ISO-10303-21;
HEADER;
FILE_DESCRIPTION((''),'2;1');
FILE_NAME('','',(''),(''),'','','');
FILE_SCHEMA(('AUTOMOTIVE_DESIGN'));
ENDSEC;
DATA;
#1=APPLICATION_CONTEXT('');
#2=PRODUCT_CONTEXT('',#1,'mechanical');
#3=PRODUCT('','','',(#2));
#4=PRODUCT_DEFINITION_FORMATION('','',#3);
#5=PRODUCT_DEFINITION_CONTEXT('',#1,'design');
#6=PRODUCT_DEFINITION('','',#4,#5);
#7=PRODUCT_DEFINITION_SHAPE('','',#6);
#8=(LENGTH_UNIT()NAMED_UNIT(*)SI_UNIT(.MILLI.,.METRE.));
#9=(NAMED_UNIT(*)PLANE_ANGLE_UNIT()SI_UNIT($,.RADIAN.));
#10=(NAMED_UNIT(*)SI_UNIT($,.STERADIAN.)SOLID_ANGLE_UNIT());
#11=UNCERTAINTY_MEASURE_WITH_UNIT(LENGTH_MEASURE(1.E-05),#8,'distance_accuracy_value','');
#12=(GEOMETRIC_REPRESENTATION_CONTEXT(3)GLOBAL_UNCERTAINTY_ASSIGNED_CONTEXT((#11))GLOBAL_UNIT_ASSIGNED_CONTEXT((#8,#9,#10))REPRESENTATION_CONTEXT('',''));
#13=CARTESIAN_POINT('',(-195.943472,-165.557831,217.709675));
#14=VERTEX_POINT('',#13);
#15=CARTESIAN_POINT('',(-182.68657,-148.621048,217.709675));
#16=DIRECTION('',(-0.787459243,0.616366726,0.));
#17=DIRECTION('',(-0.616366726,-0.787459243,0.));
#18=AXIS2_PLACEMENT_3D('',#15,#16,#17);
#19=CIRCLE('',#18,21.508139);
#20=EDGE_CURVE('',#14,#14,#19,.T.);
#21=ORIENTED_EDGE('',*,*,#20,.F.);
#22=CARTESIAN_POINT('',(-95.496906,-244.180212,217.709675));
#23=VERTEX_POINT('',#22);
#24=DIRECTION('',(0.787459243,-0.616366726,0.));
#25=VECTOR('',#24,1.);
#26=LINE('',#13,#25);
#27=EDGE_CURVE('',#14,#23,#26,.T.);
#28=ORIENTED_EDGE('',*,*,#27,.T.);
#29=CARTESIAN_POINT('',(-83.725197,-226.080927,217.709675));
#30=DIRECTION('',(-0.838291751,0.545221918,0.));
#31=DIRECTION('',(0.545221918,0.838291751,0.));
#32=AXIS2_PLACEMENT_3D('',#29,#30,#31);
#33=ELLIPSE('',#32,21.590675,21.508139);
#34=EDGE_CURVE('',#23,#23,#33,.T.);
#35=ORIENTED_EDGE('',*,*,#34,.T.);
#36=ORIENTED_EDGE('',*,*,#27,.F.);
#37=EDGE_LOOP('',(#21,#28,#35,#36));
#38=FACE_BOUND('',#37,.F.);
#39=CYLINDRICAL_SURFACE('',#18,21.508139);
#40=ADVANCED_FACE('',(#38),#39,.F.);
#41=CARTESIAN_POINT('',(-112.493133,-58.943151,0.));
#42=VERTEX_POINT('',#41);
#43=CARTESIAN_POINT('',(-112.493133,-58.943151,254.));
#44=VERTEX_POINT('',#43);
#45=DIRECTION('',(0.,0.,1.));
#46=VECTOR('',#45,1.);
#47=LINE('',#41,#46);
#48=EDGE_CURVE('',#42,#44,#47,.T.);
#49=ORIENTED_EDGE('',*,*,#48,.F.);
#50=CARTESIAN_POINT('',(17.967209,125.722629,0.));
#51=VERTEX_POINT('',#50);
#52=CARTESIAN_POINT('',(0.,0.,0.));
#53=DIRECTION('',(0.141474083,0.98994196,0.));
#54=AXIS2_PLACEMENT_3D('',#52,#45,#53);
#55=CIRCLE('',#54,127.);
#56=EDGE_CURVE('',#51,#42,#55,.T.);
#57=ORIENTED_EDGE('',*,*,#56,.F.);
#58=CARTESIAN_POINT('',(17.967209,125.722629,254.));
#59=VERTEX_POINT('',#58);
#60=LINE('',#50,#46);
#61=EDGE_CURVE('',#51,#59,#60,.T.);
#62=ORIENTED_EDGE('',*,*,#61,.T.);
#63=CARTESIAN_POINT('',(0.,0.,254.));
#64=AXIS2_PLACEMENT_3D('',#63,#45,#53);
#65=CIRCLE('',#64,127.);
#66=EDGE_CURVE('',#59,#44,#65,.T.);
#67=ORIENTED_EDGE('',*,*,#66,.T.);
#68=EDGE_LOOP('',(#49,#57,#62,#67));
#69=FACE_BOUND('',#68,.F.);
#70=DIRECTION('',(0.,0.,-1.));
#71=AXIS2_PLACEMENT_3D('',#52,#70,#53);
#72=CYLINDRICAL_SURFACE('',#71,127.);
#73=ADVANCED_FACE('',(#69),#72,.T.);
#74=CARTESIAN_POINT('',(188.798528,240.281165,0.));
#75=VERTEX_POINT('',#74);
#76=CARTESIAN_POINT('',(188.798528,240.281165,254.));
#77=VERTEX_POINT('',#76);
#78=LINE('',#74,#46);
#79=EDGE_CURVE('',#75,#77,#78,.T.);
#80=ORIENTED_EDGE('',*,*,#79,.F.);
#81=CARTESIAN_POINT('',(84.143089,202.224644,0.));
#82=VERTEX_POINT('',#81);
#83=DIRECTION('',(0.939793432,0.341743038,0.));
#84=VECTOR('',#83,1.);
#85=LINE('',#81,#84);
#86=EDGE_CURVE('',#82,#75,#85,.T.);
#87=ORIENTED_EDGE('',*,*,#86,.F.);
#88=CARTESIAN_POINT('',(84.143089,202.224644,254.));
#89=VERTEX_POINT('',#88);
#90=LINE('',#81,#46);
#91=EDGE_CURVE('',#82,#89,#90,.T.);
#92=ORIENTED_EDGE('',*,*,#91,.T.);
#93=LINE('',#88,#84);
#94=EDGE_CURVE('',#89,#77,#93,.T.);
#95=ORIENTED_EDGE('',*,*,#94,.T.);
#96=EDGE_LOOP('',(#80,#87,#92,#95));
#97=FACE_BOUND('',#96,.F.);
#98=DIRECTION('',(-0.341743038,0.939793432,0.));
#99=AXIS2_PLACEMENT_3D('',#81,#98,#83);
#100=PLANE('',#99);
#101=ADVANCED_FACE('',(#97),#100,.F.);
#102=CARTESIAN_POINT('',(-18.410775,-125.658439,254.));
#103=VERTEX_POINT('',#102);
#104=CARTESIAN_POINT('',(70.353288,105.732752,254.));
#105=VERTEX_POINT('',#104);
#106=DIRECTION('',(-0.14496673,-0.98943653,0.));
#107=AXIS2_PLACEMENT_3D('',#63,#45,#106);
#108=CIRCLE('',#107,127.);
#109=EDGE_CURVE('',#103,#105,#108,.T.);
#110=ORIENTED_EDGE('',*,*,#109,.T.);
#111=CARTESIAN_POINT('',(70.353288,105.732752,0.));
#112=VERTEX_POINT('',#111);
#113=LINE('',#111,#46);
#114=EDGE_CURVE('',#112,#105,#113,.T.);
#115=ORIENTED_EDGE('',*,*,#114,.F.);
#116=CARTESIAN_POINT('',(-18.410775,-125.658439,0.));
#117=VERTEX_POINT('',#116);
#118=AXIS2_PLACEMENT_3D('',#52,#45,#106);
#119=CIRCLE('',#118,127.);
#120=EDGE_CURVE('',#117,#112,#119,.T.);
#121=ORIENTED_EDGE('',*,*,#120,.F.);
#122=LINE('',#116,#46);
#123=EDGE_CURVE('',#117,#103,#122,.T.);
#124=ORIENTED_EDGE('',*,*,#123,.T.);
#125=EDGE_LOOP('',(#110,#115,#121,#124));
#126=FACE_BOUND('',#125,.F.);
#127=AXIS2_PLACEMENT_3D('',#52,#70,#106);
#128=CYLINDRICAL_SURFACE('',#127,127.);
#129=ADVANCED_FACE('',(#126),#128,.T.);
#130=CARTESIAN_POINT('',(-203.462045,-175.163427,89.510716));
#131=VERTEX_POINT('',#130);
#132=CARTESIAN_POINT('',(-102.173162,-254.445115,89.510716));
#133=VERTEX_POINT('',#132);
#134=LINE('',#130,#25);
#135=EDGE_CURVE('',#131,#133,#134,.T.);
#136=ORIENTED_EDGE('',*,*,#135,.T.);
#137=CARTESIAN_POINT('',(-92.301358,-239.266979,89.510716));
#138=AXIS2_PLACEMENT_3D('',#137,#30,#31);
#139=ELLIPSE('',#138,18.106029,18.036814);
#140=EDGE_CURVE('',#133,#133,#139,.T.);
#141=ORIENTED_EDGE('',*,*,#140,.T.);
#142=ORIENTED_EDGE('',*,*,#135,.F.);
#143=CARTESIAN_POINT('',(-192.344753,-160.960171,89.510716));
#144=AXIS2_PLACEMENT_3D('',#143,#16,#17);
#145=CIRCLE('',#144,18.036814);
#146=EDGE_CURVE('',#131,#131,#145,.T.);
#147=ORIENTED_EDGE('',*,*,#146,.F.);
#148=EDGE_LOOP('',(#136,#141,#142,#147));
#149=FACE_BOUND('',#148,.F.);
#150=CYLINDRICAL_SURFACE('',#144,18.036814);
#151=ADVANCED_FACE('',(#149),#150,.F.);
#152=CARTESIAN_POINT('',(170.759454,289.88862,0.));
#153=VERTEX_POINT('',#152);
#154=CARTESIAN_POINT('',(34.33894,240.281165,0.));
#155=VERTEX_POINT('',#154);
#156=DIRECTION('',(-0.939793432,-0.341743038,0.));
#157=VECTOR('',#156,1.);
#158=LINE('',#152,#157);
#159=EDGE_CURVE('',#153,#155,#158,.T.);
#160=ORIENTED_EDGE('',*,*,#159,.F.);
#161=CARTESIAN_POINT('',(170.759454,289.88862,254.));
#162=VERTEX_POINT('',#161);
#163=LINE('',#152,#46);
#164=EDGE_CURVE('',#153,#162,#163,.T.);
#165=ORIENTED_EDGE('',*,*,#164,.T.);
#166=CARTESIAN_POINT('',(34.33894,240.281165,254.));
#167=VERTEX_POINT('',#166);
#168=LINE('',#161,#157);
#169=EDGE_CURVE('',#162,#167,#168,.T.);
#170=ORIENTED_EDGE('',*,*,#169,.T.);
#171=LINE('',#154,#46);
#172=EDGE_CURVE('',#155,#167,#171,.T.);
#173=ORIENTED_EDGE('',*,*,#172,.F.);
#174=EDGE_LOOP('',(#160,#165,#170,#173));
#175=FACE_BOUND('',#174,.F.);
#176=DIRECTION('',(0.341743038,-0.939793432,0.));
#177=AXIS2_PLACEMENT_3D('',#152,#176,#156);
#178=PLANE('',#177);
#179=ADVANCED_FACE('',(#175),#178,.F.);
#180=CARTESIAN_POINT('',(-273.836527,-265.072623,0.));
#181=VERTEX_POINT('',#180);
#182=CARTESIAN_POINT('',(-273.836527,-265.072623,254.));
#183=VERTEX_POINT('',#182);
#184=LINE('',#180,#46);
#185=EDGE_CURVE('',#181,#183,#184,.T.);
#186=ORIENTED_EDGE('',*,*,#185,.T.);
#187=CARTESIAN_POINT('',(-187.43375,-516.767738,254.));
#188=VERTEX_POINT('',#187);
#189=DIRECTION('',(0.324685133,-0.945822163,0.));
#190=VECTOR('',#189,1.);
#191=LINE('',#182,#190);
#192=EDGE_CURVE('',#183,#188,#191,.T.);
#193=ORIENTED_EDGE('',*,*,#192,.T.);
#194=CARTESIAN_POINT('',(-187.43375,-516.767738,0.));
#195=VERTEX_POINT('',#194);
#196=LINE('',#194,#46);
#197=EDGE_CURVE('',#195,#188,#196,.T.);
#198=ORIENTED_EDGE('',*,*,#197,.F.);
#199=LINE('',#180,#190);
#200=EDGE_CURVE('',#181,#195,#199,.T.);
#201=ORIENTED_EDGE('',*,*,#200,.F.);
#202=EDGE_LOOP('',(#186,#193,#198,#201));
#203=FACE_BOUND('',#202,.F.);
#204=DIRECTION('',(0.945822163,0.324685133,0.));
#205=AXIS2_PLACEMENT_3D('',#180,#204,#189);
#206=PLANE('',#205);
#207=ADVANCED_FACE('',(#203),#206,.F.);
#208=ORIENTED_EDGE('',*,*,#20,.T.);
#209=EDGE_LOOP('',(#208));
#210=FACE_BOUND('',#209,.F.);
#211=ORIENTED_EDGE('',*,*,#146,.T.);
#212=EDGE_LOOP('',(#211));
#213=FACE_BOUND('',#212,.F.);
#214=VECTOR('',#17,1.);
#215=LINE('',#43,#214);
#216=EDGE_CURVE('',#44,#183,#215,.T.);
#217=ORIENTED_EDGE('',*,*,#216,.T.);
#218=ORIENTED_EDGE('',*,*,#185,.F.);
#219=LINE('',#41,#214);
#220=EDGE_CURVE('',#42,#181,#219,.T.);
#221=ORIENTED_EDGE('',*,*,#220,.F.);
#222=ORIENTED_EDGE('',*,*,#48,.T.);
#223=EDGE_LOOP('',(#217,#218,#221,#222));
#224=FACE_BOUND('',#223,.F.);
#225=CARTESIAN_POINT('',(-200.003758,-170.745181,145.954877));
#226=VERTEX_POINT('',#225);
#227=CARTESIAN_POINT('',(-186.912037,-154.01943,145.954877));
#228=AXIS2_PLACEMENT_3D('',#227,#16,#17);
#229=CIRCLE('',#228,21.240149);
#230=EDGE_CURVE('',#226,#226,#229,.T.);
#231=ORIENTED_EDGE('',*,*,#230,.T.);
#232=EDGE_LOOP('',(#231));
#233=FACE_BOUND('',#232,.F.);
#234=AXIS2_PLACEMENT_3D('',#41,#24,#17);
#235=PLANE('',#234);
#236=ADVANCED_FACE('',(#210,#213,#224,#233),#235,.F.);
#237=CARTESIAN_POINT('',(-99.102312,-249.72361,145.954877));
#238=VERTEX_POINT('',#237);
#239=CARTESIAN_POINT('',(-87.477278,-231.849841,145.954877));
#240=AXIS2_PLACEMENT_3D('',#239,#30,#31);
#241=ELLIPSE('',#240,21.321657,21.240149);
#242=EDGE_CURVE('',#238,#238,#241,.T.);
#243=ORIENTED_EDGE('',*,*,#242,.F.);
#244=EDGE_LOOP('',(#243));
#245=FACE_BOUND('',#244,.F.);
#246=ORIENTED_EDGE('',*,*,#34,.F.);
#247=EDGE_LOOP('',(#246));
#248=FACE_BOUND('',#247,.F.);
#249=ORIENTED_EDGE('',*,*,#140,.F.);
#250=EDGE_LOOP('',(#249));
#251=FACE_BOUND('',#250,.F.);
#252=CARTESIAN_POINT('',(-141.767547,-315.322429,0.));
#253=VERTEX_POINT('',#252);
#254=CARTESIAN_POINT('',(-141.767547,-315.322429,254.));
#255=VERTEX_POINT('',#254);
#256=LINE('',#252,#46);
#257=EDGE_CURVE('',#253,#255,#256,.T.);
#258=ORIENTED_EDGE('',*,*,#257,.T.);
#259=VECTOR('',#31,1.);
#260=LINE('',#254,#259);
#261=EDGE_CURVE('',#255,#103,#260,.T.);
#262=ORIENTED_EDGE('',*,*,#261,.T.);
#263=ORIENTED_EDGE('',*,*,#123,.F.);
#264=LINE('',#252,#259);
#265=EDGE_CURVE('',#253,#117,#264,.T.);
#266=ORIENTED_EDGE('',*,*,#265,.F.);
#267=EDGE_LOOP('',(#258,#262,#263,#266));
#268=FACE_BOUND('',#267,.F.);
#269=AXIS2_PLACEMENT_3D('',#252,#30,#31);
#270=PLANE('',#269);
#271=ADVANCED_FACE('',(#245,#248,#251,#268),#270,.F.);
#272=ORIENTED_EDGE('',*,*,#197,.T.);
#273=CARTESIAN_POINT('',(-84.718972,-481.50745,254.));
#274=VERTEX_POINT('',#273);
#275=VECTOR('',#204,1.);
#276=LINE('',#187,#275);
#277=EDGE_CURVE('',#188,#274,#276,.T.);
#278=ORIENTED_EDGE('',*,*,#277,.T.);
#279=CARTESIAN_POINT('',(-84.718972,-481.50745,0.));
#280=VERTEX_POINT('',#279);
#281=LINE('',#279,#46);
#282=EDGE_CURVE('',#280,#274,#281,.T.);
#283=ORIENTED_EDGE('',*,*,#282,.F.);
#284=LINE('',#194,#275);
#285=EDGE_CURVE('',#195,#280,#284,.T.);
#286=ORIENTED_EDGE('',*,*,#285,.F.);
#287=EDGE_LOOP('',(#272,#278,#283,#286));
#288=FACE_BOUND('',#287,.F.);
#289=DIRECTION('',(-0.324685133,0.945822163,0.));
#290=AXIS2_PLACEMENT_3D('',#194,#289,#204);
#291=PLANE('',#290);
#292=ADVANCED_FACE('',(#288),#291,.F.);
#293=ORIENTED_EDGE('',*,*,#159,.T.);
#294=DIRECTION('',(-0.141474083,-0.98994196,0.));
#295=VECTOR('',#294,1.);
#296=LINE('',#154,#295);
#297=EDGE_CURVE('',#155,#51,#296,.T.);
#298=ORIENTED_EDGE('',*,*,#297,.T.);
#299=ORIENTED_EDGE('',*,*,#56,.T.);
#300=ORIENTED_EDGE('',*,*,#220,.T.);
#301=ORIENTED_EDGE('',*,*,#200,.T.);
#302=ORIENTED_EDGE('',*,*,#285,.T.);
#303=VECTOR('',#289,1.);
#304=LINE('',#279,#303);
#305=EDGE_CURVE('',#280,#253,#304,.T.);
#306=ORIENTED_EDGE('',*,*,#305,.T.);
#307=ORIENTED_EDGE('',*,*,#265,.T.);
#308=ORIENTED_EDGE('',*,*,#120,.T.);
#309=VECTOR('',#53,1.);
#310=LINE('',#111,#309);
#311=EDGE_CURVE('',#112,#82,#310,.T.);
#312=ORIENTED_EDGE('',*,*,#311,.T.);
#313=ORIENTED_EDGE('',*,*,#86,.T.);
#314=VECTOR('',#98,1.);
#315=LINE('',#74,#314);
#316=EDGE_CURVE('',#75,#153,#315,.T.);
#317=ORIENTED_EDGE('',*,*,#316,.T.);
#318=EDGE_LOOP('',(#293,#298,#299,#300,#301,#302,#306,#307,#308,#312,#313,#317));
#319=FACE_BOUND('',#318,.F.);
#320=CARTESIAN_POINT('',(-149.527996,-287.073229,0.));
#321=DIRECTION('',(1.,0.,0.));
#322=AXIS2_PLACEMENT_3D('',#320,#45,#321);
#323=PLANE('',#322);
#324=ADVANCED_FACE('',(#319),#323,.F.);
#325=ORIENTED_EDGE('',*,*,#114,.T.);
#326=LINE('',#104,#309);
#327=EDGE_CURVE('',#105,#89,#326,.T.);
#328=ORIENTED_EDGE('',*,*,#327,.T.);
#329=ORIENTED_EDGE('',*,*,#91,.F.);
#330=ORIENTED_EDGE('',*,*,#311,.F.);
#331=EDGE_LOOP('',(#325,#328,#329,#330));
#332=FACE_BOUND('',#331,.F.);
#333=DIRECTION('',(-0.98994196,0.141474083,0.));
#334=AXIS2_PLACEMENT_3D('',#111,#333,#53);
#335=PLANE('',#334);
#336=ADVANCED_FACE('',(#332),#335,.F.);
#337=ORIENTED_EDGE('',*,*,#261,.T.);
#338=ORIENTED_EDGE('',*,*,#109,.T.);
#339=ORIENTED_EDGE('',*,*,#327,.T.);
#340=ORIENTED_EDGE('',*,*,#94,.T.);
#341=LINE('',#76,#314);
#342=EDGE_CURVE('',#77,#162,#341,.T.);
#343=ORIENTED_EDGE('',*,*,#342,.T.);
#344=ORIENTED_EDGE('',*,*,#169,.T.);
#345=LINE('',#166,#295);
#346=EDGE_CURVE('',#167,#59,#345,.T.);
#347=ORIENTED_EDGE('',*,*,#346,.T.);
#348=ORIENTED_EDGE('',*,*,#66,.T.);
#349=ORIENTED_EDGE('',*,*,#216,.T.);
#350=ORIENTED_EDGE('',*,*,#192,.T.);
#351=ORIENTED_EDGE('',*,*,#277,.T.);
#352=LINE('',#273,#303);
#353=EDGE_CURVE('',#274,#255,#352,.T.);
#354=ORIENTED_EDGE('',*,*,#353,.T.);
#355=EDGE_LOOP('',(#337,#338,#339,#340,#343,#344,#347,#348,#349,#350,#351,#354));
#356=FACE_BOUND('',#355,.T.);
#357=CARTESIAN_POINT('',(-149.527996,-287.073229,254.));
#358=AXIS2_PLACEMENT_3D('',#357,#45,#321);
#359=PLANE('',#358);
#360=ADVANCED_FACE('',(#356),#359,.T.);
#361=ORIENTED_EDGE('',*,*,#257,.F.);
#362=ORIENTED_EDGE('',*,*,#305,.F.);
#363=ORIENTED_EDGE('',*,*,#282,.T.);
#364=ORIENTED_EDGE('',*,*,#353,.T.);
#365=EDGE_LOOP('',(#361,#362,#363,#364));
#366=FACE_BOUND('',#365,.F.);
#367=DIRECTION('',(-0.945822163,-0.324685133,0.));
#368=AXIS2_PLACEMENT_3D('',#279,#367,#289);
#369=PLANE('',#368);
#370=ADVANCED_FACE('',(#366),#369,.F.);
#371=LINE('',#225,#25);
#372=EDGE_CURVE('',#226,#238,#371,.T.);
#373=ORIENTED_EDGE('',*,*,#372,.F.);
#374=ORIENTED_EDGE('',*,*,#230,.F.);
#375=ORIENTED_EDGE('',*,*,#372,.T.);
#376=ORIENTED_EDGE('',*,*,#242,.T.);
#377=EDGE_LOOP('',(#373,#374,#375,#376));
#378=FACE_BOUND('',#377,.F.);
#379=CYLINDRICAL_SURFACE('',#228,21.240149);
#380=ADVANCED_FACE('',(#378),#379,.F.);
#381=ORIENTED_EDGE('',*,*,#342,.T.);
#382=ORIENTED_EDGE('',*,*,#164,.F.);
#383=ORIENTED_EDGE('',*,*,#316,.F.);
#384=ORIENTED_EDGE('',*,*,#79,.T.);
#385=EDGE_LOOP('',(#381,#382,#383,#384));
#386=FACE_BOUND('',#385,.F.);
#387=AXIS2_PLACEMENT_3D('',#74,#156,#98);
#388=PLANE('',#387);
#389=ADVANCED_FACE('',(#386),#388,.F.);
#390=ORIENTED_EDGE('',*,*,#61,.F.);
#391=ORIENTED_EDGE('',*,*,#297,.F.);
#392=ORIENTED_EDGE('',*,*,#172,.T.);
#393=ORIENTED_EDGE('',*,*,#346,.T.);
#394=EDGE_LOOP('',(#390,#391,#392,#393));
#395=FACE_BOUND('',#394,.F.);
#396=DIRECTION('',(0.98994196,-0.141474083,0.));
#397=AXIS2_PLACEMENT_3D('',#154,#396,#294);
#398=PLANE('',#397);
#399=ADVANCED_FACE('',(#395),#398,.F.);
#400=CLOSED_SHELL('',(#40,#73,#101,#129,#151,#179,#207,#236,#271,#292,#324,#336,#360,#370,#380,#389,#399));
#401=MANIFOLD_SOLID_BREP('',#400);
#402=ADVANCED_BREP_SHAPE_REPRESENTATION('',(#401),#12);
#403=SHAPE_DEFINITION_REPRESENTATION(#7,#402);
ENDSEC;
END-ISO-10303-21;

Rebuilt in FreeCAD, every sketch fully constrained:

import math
import FreeCAD as App
import Part
import Sketcher
from FreeCAD import Vector
Q = App.Units.Quantity

doc = App.newDocument("Part")
body = doc.addObject("PartDesign::Body", "Body")

# Sketch on XY plane
sketch1 = body.newObject("Sketcher::SketchObject", "Sketch")
sketch1.AttachmentSupport = (doc.getObject("XY_Plane"), [""])
sketch1.MapMode = "FlatFace"
sketch1.addGeometry([
    Part.LineSegment(Vector(-142, -315, 0), Vector(-18, -126, 0)),  # 0
    Part.ArcOfCircle(Part.Circle(Vector(0, 0, 0), Vector(0, 0, 1), 127), math.radians(-98), math.radians(56)),  # 1
    Part.LineSegment(Vector(70, 106, 0), Vector(84, 202, 0)),  # 2
    Part.LineSegment(Vector(84, 202, 0), Vector(189, 240, 0)),  # 3
    Part.LineSegment(Vector(189, 240, 0), Vector(171, 290, 0)),  # 4
    Part.LineSegment(Vector(171, 290, 0), Vector(34, 240, 0)),  # 5
    Part.LineSegment(Vector(34, 240, 0), Vector(18, 126, 0)),  # 6
    Part.ArcOfCircle(Part.Circle(Vector(0, 0, 0), Vector(0, 0, 1), 127), math.radians(82), math.radians(208)),  # 7
    Part.LineSegment(Vector(-112, -59, 0), Vector(-274, -265, 0)),  # 8
    Part.LineSegment(Vector(-274, -265, 0), Vector(-187, -517, 0)),  # 9
    Part.LineSegment(Vector(-187, -517, 0), Vector(-85, -482, 0)),  # 10
    Part.LineSegment(Vector(-85, -482, 0), Vector(-142, -315, 0)),  # 11
], False)
sketch1.addConstraint([
    Sketcher.Constraint("Coincident", 0, 2, 1, 1),
    Sketcher.Constraint("Coincident", 1, 2, 2, 1),
    Sketcher.Constraint("Coincident", 2, 2, 3, 1),
    Sketcher.Constraint("Coincident", 3, 2, 4, 1),
    Sketcher.Constraint("Coincident", 4, 2, 5, 1),
    Sketcher.Constraint("Coincident", 5, 2, 6, 1),
    Sketcher.Constraint("Coincident", 6, 2, 7, 1),
    Sketcher.Constraint("Coincident", 7, 2, 8, 1),
    Sketcher.Constraint("Coincident", 8, 2, 9, 1),
    Sketcher.Constraint("Coincident", 9, 2, 10, 1),
    Sketcher.Constraint("Coincident", 10, 2, 11, 1),
    Sketcher.Constraint("Coincident", 11, 2, 0, 1),
    Sketcher.Constraint("Coincident", 1, 3, -1, 1),
    Sketcher.Constraint("Coincident", 7, 3, -1, 1),
    Sketcher.Constraint("Equal", 1, 7),
    Sketcher.Constraint("Perpendicular", 3, 4),
    Sketcher.Constraint("Perpendicular", 4, 5),
    Sketcher.Constraint("Parallel", 2, 6),
    Sketcher.Constraint("Perpendicular", 9, 10),
    Sketcher.Constraint("Perpendicular", 10, 11),
    Sketcher.Constraint("Horizontal", 3, 2, 5, 2),
    Sketcher.Constraint("Radius", 1, Q("5 in")),
    Sketcher.Constraint("DistanceY", -1, 1, 2, 2, Q("7.9616002 in")),
    Sketcher.Constraint("Distance", 11, Q("175.7043 mm")),
    Sketcher.Constraint("DistanceX", 1, 2, 2, 2, Q("13.7898 mm")),
    Sketcher.Constraint("DistanceY", 9, 2, 0, 2, Q("391.109298 mm")),
    Sketcher.Constraint("DistanceY", 10, 2, 7, 2, Q("422.564299 mm")),
    Sketcher.Constraint("Distance", 4, Q("52.785489 mm")),
    Sketcher.Constraint("DistanceY", 0, 2, -1, 1, Q("125.658439 mm")),
    Sketcher.Constraint("DistanceX", -1, 1, 1, 2, Q("70.353288 mm")),
    Sketcher.Constraint("DistanceY", -1, 1, 4, 2, Q("289.88862 mm")),
    Sketcher.Constraint("DistanceX", -1, 1, 5, 2, Q("34.33894 mm")),
    Sketcher.Constraint("DistanceY", 7, 2, -1, 1, Q("58.943151 mm")),
    Sketcher.Constraint("DistanceX", 9, 2, -1, 1, Q("187.43375 mm")),
    Sketcher.Constraint("DistanceY", 11, 2, -1, 1, Q("315.322429 mm")),
    Sketcher.Constraint("DistanceY", 8, 2, 7, 2, Q("206.129472 mm")),
])
pad1 = body.newObject("PartDesign::Pad", "Pad")
pad1.Profile = sketch1
pad1.Length = Q("10 in")

# Sketch on an angled plane
sketch2 = body.newObject("Sketcher::SketchObject", "Sketch001")
sketch2.Placement = App.Placement(Vector(-41.147234, 32.207109, 0), App.Rotation(Vector(-0.616366726, -0.787459243, 0), Vector(0, 0, 1), Vector(-0.787459243, 0.616366726, 0), "ZXY"))
sketch2.addGeometry([
    Part.Circle(Vector(230, 218, 0), Vector(0, 0, 1), 22),
    Part.Circle(Vector(236, 146, 0), Vector(0, 0, 1), 21),
    Part.Circle(Vector(245, 90, 0), Vector(0, 0, 1), 18),
], False)
sketch2.addConstraint([
    Sketcher.Constraint("Diameter", 1, Q("42.480298 mm")),
    Sketcher.Constraint("Diameter", 0, Q("43.016279 mm")),
    Sketcher.Constraint("Diameter", 2, Q("36.073629 mm")),
    Sketcher.Constraint("DistanceY", 1, 3, 0, 3, Q("71.754798 mm")),
    Sketcher.Constraint("DistanceX", -1, 1, 0, 3, Q("229.634941 mm")),
    Sketcher.Constraint("DistanceX", -1, 1, 2, 3, Q("245.30448 mm")),
    Sketcher.Constraint("DistanceY", 2, 3, 1, 3, Q("56.444161 mm")),
    Sketcher.Constraint("DistanceY", -1, 1, 0, 3, Q("217.709676 mm")),
    Sketcher.Constraint("DistanceX", -1, 1, 1, 3, Q("236.490384 mm")),
])
pocket1 = body.newObject("PartDesign::Pocket", "Pocket")
pocket1.Profile = sketch2
pocket1.Length = Q("20 in")

doc.recompute()
